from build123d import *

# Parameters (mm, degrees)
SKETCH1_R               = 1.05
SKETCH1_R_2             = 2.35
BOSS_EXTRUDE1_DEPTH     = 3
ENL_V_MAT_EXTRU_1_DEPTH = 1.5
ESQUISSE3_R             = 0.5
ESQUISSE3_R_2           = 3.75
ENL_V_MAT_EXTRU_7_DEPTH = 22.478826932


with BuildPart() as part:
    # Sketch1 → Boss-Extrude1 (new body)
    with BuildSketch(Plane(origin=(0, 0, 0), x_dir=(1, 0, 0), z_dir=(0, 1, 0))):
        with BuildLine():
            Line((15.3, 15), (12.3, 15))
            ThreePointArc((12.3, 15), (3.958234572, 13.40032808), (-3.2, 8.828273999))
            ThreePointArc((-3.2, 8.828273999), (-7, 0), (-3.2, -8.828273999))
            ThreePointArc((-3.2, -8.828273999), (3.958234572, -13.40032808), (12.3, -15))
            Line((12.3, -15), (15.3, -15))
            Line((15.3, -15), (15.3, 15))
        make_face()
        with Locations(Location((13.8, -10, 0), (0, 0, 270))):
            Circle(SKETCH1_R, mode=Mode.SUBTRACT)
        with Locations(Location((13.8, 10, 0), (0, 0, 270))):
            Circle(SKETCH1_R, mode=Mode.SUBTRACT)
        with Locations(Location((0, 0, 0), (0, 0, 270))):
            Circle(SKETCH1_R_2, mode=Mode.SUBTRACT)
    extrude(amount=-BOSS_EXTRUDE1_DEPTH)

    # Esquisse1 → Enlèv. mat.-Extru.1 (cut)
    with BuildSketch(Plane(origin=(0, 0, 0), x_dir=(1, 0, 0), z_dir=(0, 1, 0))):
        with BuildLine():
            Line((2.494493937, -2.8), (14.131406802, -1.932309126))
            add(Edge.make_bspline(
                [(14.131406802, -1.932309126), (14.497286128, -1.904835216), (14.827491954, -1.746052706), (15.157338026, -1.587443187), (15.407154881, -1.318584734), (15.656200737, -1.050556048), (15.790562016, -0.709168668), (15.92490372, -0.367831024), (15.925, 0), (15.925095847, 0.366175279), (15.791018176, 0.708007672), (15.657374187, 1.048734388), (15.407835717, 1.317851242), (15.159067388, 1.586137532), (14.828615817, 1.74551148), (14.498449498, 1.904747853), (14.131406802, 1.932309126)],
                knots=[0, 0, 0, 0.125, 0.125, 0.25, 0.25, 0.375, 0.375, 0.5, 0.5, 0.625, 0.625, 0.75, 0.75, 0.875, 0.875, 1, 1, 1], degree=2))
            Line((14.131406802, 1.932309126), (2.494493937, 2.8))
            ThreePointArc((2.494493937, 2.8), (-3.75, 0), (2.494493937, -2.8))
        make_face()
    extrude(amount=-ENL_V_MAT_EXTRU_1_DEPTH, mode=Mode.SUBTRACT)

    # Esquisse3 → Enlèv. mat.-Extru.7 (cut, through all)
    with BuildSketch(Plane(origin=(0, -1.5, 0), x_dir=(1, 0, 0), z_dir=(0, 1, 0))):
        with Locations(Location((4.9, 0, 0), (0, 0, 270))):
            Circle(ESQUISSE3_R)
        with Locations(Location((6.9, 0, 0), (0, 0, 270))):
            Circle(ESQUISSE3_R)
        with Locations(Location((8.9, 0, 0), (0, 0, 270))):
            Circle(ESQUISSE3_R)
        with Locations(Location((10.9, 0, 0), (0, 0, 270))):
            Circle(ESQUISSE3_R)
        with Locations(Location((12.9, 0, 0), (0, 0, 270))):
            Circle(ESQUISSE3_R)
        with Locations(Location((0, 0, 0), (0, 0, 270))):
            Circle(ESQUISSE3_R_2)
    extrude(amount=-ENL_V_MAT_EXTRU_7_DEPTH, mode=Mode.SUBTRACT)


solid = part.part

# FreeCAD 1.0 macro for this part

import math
import FreeCAD as App
import Part
import Sketcher

V = App.Vector

doc = App.newDocument("Part")
body = doc.addObject("PartDesign::Body", "Body")

# Sketch on XZ plane
sketch1 = body.newObject("Sketcher::SketchObject", "Sketch")
sketch1.AttachmentSupport = (doc.getObject("XZ_Plane"), [""])
sketch1.MapMode = "FlatFace"
sketch1.addGeometry(Part.LineSegment(V(15.3, -15, 0), V(12.3, -15, 0)), False)
sketch1.addGeometry(Part.ArcOfCircle(Part.Circle(V(12.3, 7.5, 0), V(0, 0, 1), 22.5), math.radians(-133), math.radians(-90)), False)
sketch1.addGeometry(Part.ArcOfCircle(Part.Circle(V(5.2, 0, 0), V(0, 0, 1), 12.2), math.radians(133), math.radians(227)), False)
sketch1.addGeometry(Part.ArcOfCircle(Part.Circle(V(12.3, -7.5, 0), V(0, 0, 1), 22.5), math.radians(90), math.radians(133)), False)
sketch1.addGeometry(Part.LineSegment(V(12.3, 15, 0), V(15.3, 15, 0)), False)
sketch1.addGeometry(Part.LineSegment(V(15.3, 15, 0), V(15.3, -15, 0)), False)
sketch1.addGeometry(Part.Circle(V(13.8, 10, 0), V(0, 0, 1), 1.1), False)
sketch1.addGeometry(Part.Circle(V(0, 0, 0), V(0, 0, 1), 2.4), False)
sketch1.addGeometry(Part.Circle(V(13.8, -10, 0), V(0, 0, 1), 1.1), False)
sketch1.addConstraint(Sketcher.Constraint("Tangent", 0, 2, 1, 2))
sketch1.addConstraint(Sketcher.Constraint("Tangent", 1, 1, 2, 2))
sketch1.addConstraint(Sketcher.Constraint("Tangent", 2, 1, 3, 2))
sketch1.addConstraint(Sketcher.Constraint("Tangent", 3, 1, 4, 1))
sketch1.addConstraint(Sketcher.Constraint("Coincident", 4, 2, 5, 1))
sketch1.addConstraint(Sketcher.Constraint("Coincident", 5, 2, 0, 1))
sketch1.addConstraint(Sketcher.Constraint("Horizontal", 0))
sketch1.addConstraint(Sketcher.Constraint("Horizontal", 4))
sketch1.addConstraint(Sketcher.Constraint("Vertical", 5))
sketch1.addConstraint(Sketcher.Constraint("Coincident", 7, 3, -1, 1))
sketch1.addConstraint(Sketcher.Constraint("Equal", 1, 3))
sketch1.addConstraint(Sketcher.Constraint("Equal", 6, 8))
sketch1.addConstraint(Sketcher.Constraint("Symmetric", 1, 3, 3, 3, -1))
sketch1.addConstraint(Sketcher.Constraint("Symmetric", 6, 3, 8, 3, -1))
sketch1.addConstraint(Sketcher.Constraint("Diameter", 6, 2.1))
sketch1.addConstraint(Sketcher.Constraint("Diameter", 7, 4.7))
sketch1.addConstraint(Sketcher.Constraint("DistanceX", 0, 2, 0, 1, 3.0))
sketch1.addConstraint(Sketcher.Constraint("DistanceY", 5, 2, 5, 1, 30.0))
sketch1.addConstraint(Sketcher.Constraint("DistanceY", -1, 1, 6, 3, 10.0))
sketch1.addConstraint(Sketcher.Constraint("DistanceX", 1, 1, 8, 3, 17.0))
sketch1.addConstraint(Sketcher.Constraint("DistanceX", -1, 1, 1, 3, 12.3))
sketch1.addConstraint(Sketcher.Constraint("DistanceX", -1, 1, 6, 3, 13.8))
sketch1.addConstraint(Sketcher.Constraint("Radius", 1, 22.549624))
pad1 = body.newObject("PartDesign::Pad", "Pad")
pad1.Profile = sketch1
pad1.Length = 3

# Sketch on XZ plane
sketch2 = body.newObject("Sketcher::SketchObject", "Sketch001")
sketch2.AttachmentSupport = (doc.getObject("XZ_Plane"), [""])
sketch2.MapMode = "FlatFace"
sketch2.addGeometry(Part.LineSegment(V(2.494494, 2.8, 0), V(14.131407, 1.932309, 0)), False)
sketch2.addGeometry(Part.BSplineCurve([V(14.131407, 1.932309, 0), V(14.497286, 1.904835, 0), V(14.827492, 1.746053, 0), V(15.157338, 1.587443, 0), V(15.407155, 1.318585, 0), V(15.656201, 1.050556, 0), V(15.790562, 0.709169, 0), V(15.924904, 0.367831, 0), V(15.925, 0, 0), V(15.925096, -0.366175, 0), V(15.791018, -0.708008, 0), V(15.657374, -1.048734, 0), V(15.407836, -1.317851, 0), V(15.159067, -1.586138, 0), V(14.828616, -1.745511, 0), V(14.498449, -1.904748, 0), V(14.131407, -1.932309, 0)], [3, 2, 2, 2, 2, 2, 2, 2, 3], [0, 0.125, 0.25, 0.375, 0.5, 0.625, 0.75, 0.875, 1], False, 2, [1, 1, 1, 1, 1, 1, 1, 1, 1, 1, 1, 1, 1, 1, 1, 1, 1], False), False)
sketch2.addGeometry(Part.LineSegment(V(14.131407, -1.932309, 0), V(2.494494, -2.8, 0)), False)
sketch2.addGeometry(Part.ArcOfCircle(Part.Circle(V(0, 0, 0), V(0, 0, 1), 3.75), math.radians(48.302453), math.radians(311.697547)), False)
sketch2.addConstraint(Sketcher.Constraint("Block", 1))
sketch2.addConstraint(Sketcher.Constraint("Coincident", 0, 2, 1, 1))
sketch2.addConstraint(Sketcher.Constraint("Coincident", 1, 2, 2, 1))
sketch2.addConstraint(Sketcher.Constraint("Coincident", 2, 2, 3, 2))
sketch2.addConstraint(Sketcher.Constraint("Coincident", 3, 1, 0, 1))
sketch2.addConstraint(Sketcher.Constraint("Coincident", 3, 3, -1, 1))
sketch2.addConstraint(Sketcher.Constraint("Vertical", 2, 2, 3, 1))
sketch2.addConstraint(Sketcher.Constraint("Radius", 3, 3.75))
sketch2.addConstraint(Sketcher.Constraint("DistanceY", 2, 2, -1, 1, 2.8))
pocket1 = body.newObject("PartDesign::Pocket", "Pocket")
pocket1.Profile = sketch2
pocket1.Length = 1.5
pocket1.Reversed = True

# Sketch on XZ plane
sketch3 = body.newObject("Sketcher::SketchObject", "Sketch002")
sketch3.AttachmentSupport = (doc.getObject("XZ_Plane"), [""])
sketch3.MapMode = "FlatFace"
sketch3.AttachmentOffset = App.Placement(V(0, 0, 1.5), App.Rotation())
sketch3.addGeometry(Part.Circle(V(4.9, 0, 0), V(0, 0, 1), 0.5), False)
sketch3.addGeometry(Part.Circle(V(6.9, 0, 0), V(0, 0, 1), 0.5), False)
sketch3.addGeometry(Part.Circle(V(8.9, 0, 0), V(0, 0, 1), 0.5), False)
sketch3.addGeometry(Part.Circle(V(10.9, 0, 0), V(0, 0, 1), 0.5), False)
sketch3.addGeometry(Part.Circle(V(12.9, 0, 0), V(0, 0, 1), 0.5), False)
sketch3.addGeometry(Part.Circle(V(0, 0, 0), V(0, 0, 1), 3.8), False)
sketch3.addConstraint(Sketcher.Constraint("Coincident", 5, 3, -1, 1))
sketch3.addConstraint(Sketcher.Constraint("Equal", 0, 1))
sketch3.addConstraint(Sketcher.Constraint("Equal", 1, 2))
sketch3.addConstraint(Sketcher.Constraint("Equal", 2, 3))
sketch3.addConstraint(Sketcher.Constraint("Equal", 3, 4))
sketch3.addConstraint(Sketcher.Constraint("PointOnObject", 0, 3, -1))
sketch3.addConstraint(Sketcher.Constraint("PointOnObject", 1, 3, -1))
sketch3.addConstraint(Sketcher.Constraint("PointOnObject", 2, 3, -1))
sketch3.addConstraint(Sketcher.Constraint("PointOnObject", 3, 3, -1))
sketch3.addConstraint(Sketcher.Constraint("PointOnObject", 4, 3, -1))
sketch3.addConstraint(Sketcher.Constraint("Diameter", 0, 1.0))
sketch3.addConstraint(Sketcher.Constraint("Diameter", 5, 7.5))
sketch3.addConstraint(Sketcher.Constraint("DistanceX", 0, 3, 1, 3, 2.0))
sketch3.addConstraint(Sketcher.Constraint("DistanceX", 1, 3, 2, 3, 2.0))
sketch3.addConstraint(Sketcher.Constraint("DistanceX", 2, 3, 3, 3, 2.0))
sketch3.addConstraint(Sketcher.Constraint("DistanceX", 3, 3, 4, 3, 2.0))
sketch3.addConstraint(Sketcher.Constraint("DistanceX", -1, 1, 0, 3, 4.9))
pocket2 = body.newObject("PartDesign::Pocket", "Pocket001")
pocket2.Profile = sketch3
pocket2.Type = "ThroughAll"
pocket2.Reversed = True

doc.recompute()
